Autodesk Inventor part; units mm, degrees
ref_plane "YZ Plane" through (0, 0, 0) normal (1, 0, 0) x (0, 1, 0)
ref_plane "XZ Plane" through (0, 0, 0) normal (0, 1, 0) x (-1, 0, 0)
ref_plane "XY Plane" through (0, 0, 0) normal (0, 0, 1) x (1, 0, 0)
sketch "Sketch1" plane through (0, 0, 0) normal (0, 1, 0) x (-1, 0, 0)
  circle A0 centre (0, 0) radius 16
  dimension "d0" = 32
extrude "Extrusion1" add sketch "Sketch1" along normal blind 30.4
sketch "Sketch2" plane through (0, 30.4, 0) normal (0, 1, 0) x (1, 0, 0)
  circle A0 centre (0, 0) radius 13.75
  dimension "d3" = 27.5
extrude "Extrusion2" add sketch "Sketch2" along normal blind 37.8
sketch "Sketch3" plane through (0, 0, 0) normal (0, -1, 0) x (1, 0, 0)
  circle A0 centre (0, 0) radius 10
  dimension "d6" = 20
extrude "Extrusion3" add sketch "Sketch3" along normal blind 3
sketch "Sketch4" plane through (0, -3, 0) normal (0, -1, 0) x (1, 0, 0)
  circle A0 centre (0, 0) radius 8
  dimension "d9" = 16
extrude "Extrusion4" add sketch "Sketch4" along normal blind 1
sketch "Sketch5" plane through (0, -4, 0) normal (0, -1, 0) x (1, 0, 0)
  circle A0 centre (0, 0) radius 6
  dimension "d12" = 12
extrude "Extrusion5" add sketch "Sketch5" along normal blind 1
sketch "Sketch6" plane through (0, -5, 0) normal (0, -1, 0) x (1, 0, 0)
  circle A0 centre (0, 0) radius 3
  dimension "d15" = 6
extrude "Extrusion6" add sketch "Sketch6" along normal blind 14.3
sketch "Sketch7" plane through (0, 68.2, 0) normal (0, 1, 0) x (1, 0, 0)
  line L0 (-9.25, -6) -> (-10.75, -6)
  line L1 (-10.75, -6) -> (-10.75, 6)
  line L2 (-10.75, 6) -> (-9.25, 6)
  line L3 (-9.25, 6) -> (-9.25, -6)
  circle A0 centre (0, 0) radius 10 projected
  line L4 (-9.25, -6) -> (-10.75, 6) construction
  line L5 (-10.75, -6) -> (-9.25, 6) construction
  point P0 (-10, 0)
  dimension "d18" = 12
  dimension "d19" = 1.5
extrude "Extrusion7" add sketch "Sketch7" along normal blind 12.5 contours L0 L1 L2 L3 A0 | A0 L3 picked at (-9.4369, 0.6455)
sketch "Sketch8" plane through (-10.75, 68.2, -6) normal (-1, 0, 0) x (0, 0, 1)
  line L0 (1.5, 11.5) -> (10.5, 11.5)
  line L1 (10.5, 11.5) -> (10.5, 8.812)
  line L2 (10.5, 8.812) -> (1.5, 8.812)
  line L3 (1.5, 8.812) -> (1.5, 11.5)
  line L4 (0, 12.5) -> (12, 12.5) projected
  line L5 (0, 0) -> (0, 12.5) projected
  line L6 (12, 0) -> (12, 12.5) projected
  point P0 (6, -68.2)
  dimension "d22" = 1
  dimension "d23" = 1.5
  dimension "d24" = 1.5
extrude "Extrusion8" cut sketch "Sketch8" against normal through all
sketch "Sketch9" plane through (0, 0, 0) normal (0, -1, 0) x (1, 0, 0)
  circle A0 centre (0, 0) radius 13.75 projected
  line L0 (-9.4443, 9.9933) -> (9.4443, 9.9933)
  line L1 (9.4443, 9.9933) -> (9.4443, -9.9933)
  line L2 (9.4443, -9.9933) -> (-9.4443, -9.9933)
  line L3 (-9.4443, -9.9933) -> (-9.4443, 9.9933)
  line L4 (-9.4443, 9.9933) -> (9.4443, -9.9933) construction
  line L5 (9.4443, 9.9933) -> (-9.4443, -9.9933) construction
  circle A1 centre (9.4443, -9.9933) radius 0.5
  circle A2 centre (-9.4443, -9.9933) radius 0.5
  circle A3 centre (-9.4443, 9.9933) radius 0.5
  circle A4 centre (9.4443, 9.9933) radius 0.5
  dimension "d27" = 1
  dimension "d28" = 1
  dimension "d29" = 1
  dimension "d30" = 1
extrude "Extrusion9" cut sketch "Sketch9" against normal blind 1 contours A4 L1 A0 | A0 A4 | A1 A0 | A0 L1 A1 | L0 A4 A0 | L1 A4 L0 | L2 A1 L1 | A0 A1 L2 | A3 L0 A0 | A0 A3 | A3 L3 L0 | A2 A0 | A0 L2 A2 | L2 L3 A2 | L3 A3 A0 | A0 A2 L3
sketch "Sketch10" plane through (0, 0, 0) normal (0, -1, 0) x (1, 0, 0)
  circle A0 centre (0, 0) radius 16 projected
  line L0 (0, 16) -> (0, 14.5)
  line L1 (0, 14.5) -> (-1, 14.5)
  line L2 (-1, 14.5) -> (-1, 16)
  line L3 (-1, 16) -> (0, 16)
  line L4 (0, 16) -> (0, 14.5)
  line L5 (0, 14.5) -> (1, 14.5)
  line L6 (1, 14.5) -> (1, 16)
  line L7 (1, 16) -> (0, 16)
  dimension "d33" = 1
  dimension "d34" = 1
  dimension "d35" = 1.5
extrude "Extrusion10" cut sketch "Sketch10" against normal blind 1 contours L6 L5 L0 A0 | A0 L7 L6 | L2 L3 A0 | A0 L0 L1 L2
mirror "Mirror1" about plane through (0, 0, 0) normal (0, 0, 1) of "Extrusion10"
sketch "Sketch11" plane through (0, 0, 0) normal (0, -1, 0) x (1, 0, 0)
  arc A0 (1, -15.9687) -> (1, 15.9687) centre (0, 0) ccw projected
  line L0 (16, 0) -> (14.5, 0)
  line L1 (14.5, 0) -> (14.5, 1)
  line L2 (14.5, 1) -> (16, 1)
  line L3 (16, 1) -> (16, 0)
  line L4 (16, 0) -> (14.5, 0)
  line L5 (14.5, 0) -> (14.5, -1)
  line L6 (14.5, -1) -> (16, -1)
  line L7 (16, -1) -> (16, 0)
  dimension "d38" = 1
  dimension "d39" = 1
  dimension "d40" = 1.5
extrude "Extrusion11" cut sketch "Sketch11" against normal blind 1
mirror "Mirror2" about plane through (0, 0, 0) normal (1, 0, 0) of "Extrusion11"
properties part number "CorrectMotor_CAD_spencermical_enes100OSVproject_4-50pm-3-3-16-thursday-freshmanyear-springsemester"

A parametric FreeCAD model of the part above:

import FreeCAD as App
import Part
import Sketcher

doc = App.newDocument("Part")
params = doc.addObject("Spreadsheet::Sheet", "Params")
for row, (alias, value) in enumerate([
    ("sketch1_diameter", "32 mm"),
    ("pad1_length", "30.4 mm"),
    ("sketch2_diameter", "27.5 mm"),
    ("pad2_length", "37.8 mm"),
    ("sketch3_diameter", "20 mm"),
    ("pad3_length", "3 mm"),
    ("sketch4_diameter", "16 mm"),
    ("pad4_length", "1 mm"),
    ("sketch5_diameter", "12 mm"),
    ("pad5_length", "1 mm"),
    ("sketch6_diameter", "6 mm"),
    ("pad6_length", "14.3 mm"),
    ("sketch7_height", "12 mm"),
    ("sketch7_width", "1.5 mm"),
    ("pad7_length", "12.5 mm"),
    ("sketch8_height", "9 mm"),
    ("sketch9_diameter", "1 mm"),
    ("pocket2_length", "1 mm"),
    ("sketch10_height", "1.5 mm"),
    ("pocket3_length", "1 mm"),
    ("sketch11_width", "1.5 mm"),
    ("pocket4_length", "1 mm"),
], start=1):
    params.set(f"A{row}", alias)
    params.set(f"B{row}", "=" + value)
    params.setAlias(f"B{row}", alias)

body = doc.addObject("PartDesign::Body", "Body")

sketch1 = doc.addObject("Sketcher::SketchObject", "Sketch")
body.addObject(sketch1)
sketch1.AttachmentSupport = (doc.XZ_Plane, [""])
sketch1.MapMode = "FlatFace"
sketch1.addGeometry(Part.Circle(App.Vector(0, 0, 0), App.Vector(0, 0, 1), 16), False)
sketch1.addConstraint(Sketcher.Constraint("Coincident", 0, 3, -1, 1))
sketch1.addConstraint(Sketcher.Constraint("Diameter", 0, 32.0))
sketch1.setExpression("Constraints[1]", "Params.sketch1_diameter")
pad1 = doc.addObject("PartDesign::Pad", "Pad")
body.addObject(pad1)
pad1.Profile = sketch1
pad1.setExpression("Length", "Params.pad1_length")
pad1.Reversed = True

sketch2 = doc.addObject("Sketcher::SketchObject", "Sketch001")
body.addObject(sketch2)
sketch2.AttachmentSupport = (doc.XZ_Plane, [""])
sketch2.MapMode = "FlatFace"
sketch2.AttachmentOffset = App.Placement(App.Vector(0, 0, -30.4), App.Rotation())
sketch2.addGeometry(Part.Circle(App.Vector(0, 0, 0), App.Vector(0, 0, 1), 14), False)
sketch2.addConstraint(Sketcher.Constraint("Coincident", 0, 3, -1, 1))
sketch2.addConstraint(Sketcher.Constraint("Diameter", 0, 27.5))
sketch2.setExpression("Constraints[1]", "Params.sketch2_diameter")
pad2 = doc.addObject("PartDesign::Pad", "Pad001")
body.addObject(pad2)
pad2.Profile = sketch2
pad2.setExpression("Length", "Params.pad2_length")
pad2.Reversed = True

sketch3 = doc.addObject("Sketcher::SketchObject", "Sketch002")
body.addObject(sketch3)
sketch3.AttachmentSupport = (doc.XZ_Plane, [""])
sketch3.MapMode = "FlatFace"
sketch3.addGeometry(Part.Circle(App.Vector(0, 0, 0), App.Vector(0, 0, 1), 10), False)
sketch3.addConstraint(Sketcher.Constraint("Coincident", 0, 3, -1, 1))
sketch3.addConstraint(Sketcher.Constraint("Diameter", 0, 20.0))
sketch3.setExpression("Constraints[1]", "Params.sketch3_diameter")
pad3 = doc.addObject("PartDesign::Pad", "Pad002")
body.addObject(pad3)
pad3.Profile = sketch3
pad3.setExpression("Length", "Params.pad3_length")

sketch4 = doc.addObject("Sketcher::SketchObject", "Sketch003")
body.addObject(sketch4)
sketch4.AttachmentSupport = (doc.XZ_Plane, [""])
sketch4.MapMode = "FlatFace"
sketch4.AttachmentOffset = App.Placement(App.Vector(0, 0, 3), App.Rotation())
sketch4.addGeometry(Part.Circle(App.Vector(0, 0, 0), App.Vector(0, 0, 1), 8), False)
sketch4.addConstraint(Sketcher.Constraint("Coincident", 0, 3, -1, 1))
sketch4.addConstraint(Sketcher.Constraint("Diameter", 0, 16.0))
sketch4.setExpression("Constraints[1]", "Params.sketch4_diameter")
pad4 = doc.addObject("PartDesign::Pad", "Pad003")
body.addObject(pad4)
pad4.Profile = sketch4
pad4.setExpression("Length", "Params.pad4_length")

sketch5 = doc.addObject("Sketcher::SketchObject", "Sketch004")
body.addObject(sketch5)
sketch5.AttachmentSupport = (doc.XZ_Plane, [""])
sketch5.MapMode = "FlatFace"
sketch5.AttachmentOffset = App.Placement(App.Vector(0, 0, 4), App.Rotation())
sketch5.addGeometry(Part.Circle(App.Vector(0, 0, 0), App.Vector(0, 0, 1), 6), False)
sketch5.addConstraint(Sketcher.Constraint("Coincident", 0, 3, -1, 1))
sketch5.addConstraint(Sketcher.Constraint("Diameter", 0, 12.0))
sketch5.setExpression("Constraints[1]", "Params.sketch5_diameter")
pad5 = doc.addObject("PartDesign::Pad", "Pad004")
body.addObject(pad5)
pad5.Profile = sketch5
pad5.setExpression("Length", "Params.pad5_length")

sketch6 = doc.addObject("Sketcher::SketchObject", "Sketch005")
body.addObject(sketch6)
sketch6.AttachmentSupport = (doc.XZ_Plane, [""])
sketch6.MapMode = "FlatFace"
sketch6.AttachmentOffset = App.Placement(App.Vector(0, 0, 5), App.Rotation())
sketch6.addGeometry(Part.Circle(App.Vector(0, 0, 0), App.Vector(0, 0, 1), 3), False)
sketch6.addConstraint(Sketcher.Constraint("Coincident", 0, 3, -1, 1))
sketch6.addConstraint(Sketcher.Constraint("Diameter", 0, 6.0))
sketch6.setExpression("Constraints[1]", "Params.sketch6_diameter")
pad6 = doc.addObject("PartDesign::Pad", "Pad005")
body.addObject(pad6)
pad6.Profile = sketch6
pad6.setExpression("Length", "Params.pad6_length")

sketch7 = doc.addObject("Sketcher::SketchObject", "Sketch006")
body.addObject(sketch7)
sketch7.AttachmentSupport = (doc.XZ_Plane, [""])
sketch7.MapMode = "FlatFace"
sketch7.AttachmentOffset = App.Placement(App.Vector(0, 0, -68.2), App.Rotation())
sketch7.addGeometry(Part.LineSegment(App.Vector(-10.8, 6, 0), App.Vector(-9.2, 6, 0)), False)
sketch7.addGeometry(Part.LineSegment(App.Vector(-9.2, 6, 0), App.Vector(-9.2, -6, 0)), False)
sketch7.addGeometry(Part.LineSegment(App.Vector(-9.2, -6, 0), App.Vector(-10.8, -6, 0)), False)
sketch7.addGeometry(Part.LineSegment(App.Vector(-10.8, -6, 0), App.Vector(-10.8, 6, 0)), False)
sketch7.addConstraint(Sketcher.Constraint("Coincident", 0, 2, 1, 1))
sketch7.addConstraint(Sketcher.Constraint("Coincident", 1, 2, 2, 1))
sketch7.addConstraint(Sketcher.Constraint("Coincident", 2, 2, 3, 1))
sketch7.addConstraint(Sketcher.Constraint("Coincident", 3, 2, 0, 1))
sketch7.addConstraint(Sketcher.Constraint("Horizontal", 0))
sketch7.addConstraint(Sketcher.Constraint("Vertical", 1))
sketch7.addConstraint(Sketcher.Constraint("Horizontal", 2))
sketch7.addConstraint(Sketcher.Constraint("Vertical", 3))
sketch7.addConstraint(Sketcher.Constraint("DistanceY", 1, 2, 1, 1, 12.0))
sketch7.addConstraint(Sketcher.Constraint("DistanceX", 0, 1, 0, 2, 1.5))
sketch7.addConstraint(Sketcher.Constraint("DistanceY", -1, 1, 0, 2, 6.0))
sketch7.addConstraint(Sketcher.Constraint("DistanceX", 0, 2, -1, 1, 9.25))
sketch7.setExpression("Constraints[8]", "Params.sketch7_height")
sketch7.setExpression("Constraints[9]", "Params.sketch7_width")
pad7 = doc.addObject("PartDesign::Pad", "Pad006")
body.addObject(pad7)
pad7.Profile = sketch7
pad7.setExpression("Length", "Params.pad7_length")
pad7.Reversed = True

sketch8 = doc.addObject("Sketcher::SketchObject", "Sketch007")
body.addObject(sketch8)
sketch8.AttachmentSupport = (doc.YZ_Plane, [""])
sketch8.MapMode = "FlatFace"
sketch8.AttachmentOffset = App.Placement(App.Vector(0, 0, -10.75), App.Rotation())
sketch8.addGeometry(Part.LineSegment(App.Vector(79.7, 4.5, 0), App.Vector(79.7, -4.5, 0)), False)
sketch8.addGeometry(Part.LineSegment(App.Vector(79.7, -4.5, 0), App.Vector(77, -4.5, 0)), False)
sketch8.addGeometry(Part.LineSegment(App.Vector(77, -4.5, 0), App.Vector(77, 4.5, 0)), False)
sketch8.addGeometry(Part.LineSegment(App.Vector(77, 4.5, 0), App.Vector(79.7, 4.5, 0)), False)
sketch8.addConstraint(Sketcher.Constraint("Coincident", 0, 2, 1, 1))
sketch8.addConstraint(Sketcher.Constraint("Coincident", 1, 2, 2, 1))
sketch8.addConstraint(Sketcher.Constraint("Coincident", 2, 2, 3, 1))
sketch8.addConstraint(Sketcher.Constraint("Coincident", 3, 2, 0, 1))
sketch8.addConstraint(Sketcher.Constraint("Vertical", 0))
sketch8.addConstraint(Sketcher.Constraint("Horizontal", 1))
sketch8.addConstraint(Sketcher.Constraint("Vertical", 2))
sketch8.addConstraint(Sketcher.Constraint("Horizontal", 3))
sketch8.addConstraint(Sketcher.Constraint("DistanceY", 0, 2, 0, 1, 9.0))
sketch8.addConstraint(Sketcher.Constraint("DistanceX", -1, 1, 0, 2, 79.7))
sketch8.addConstraint(Sketcher.Constraint("DistanceY", 0, 2, -1, 1, 4.5))
sketch8.addConstraint(Sketcher.Constraint("DistanceX", 1, 2, 1, 1, 2.688))
sketch8.setExpression("Constraints[8]", "Params.sketch8_height")
pocket1 = doc.addObject("PartDesign::Pocket", "Pocket")
body.addObject(pocket1)
pocket1.Profile = sketch8
pocket1.Type = "ThroughAll"
pocket1.Reversed = True

sketch9 = doc.addObject("Sketcher::SketchObject", "Sketch008")
body.addObject(sketch9)
sketch9.AttachmentSupport = (doc.XZ_Plane, [""])
sketch9.MapMode = "FlatFace"
sketch9.addGeometry(Part.Circle(App.Vector(9.4, 10, 0), App.Vector(0, 0, 1), 0.5), False)
sketch9.addGeometry(Part.Circle(App.Vector(9.4, -10, 0), App.Vector(0, 0, 1), 0.5), False)
sketch9.addGeometry(Part.Circle(App.Vector(-9.4, 10, 0), App.Vector(0, 0, 1), 0.5), False)
sketch9.addGeometry(Part.Circle(App.Vector(-9.4, -10, 0), App.Vector(0, 0, 1), 0.5), False)
sketch9.addConstraint(Sketcher.Constraint("Equal", 0, 1))
sketch9.addConstraint(Sketcher.Constraint("Equal", 1, 2))
sketch9.addConstraint(Sketcher.Constraint("Equal", 2, 3))
sketch9.addConstraint(Sketcher.Constraint("Symmetric", 1, 3, 2, 3, -1, 1))
sketch9.addConstraint(Sketcher.Constraint("Symmetric", 0, 3, 3, 3, -1, 1))
sketch9.addConstraint(Sketcher.Constraint("Symmetric", 0, 3, 2, 3, -2))
sketch9.addConstraint(Sketcher.Constraint("Diameter", 0, 1.0))
sketch9.addConstraint(Sketcher.Constraint("DistanceX", -1, 1, 0, 3, 9.4443))
sketch9.addConstraint(Sketcher.Constraint("DistanceY", -1, 1, 0, 3, 9.9933))
sketch9.setExpression("Constraints[6]", "Params.sketch9_diameter")
pocket2 = doc.addObject("PartDesign::Pocket", "Pocket001")
body.addObject(pocket2)
pocket2.Profile = sketch9
pocket2.setExpression("Length", "Params.pocket2_length")

sketch10 = doc.addObject("Sketcher::SketchObject", "Sketch009")
body.addObject(sketch10)
sketch10.AttachmentSupport = (doc.XZ_Plane, [""])
sketch10.MapMode = "FlatFace"
sketch10.addGeometry(Part.LineSegment(App.Vector(1, 14.5, 0), App.Vector(1, 16, 0)), False)
sketch10.addGeometry(Part.LineSegment(App.Vector(1, 16, 0), App.Vector(-1, 16, 0)), False)
sketch10.addGeometry(Part.LineSegment(App.Vector(-1, 16, 0), App.Vector(-1, 14.5, 0)), False)
sketch10.addGeometry(Part.LineSegment(App.Vector(-1, 14.5, 0), App.Vector(1, 14.5, 0)), False)
sketch10.addConstraint(Sketcher.Constraint("Coincident", 0, 2, 1, 1))
sketch10.addConstraint(Sketcher.Constraint("Coincident", 1, 2, 2, 1))
sketch10.addConstraint(Sketcher.Constraint("Coincident", 2, 2, 3, 1))
sketch10.addConstraint(Sketcher.Constraint("Coincident", 3, 2, 0, 1))
sketch10.addConstraint(Sketcher.Constraint("Vertical", 0))
sketch10.addConstraint(Sketcher.Constraint("Horizontal", 1))
sketch10.addConstraint(Sketcher.Constraint("Vertical", 2))
sketch10.addConstraint(Sketcher.Constraint("Horizontal", 3))
sketch10.addConstraint(Sketcher.Constraint("DistanceY", 0, 1, 0, 2, 1.5))
sketch10.addConstraint(Sketcher.Constraint("DistanceX", -1, 1, 0, 2, 1.0))
sketch10.addConstraint(Sketcher.Constraint("DistanceX", 1, 2, -1, 1, 1.0))
sketch10.addConstraint(Sketcher.Constraint("DistanceY", -1, 1, 0, 2, 16.0))
sketch10.setExpression("Constraints[8]", "Params.sketch10_height")
pocket3 = doc.addObject("PartDesign::Pocket", "Pocket002")
body.addObject(pocket3)
pocket3.Profile = sketch10
pocket3.setExpression("Length", "Params.pocket3_length")
doc.recompute()

mirrored = doc.addObject("PartDesign::Mirrored", "Mirrored")
body.addObject(mirrored)
mirrored.Originals = [pocket3]
mirrored.MirrorPlane = (doc.XY_Plane, [""])
body.Tip = mirrored

sketch11 = doc.addObject("Sketcher::SketchObject", "Sketch010")
body.addObject(sketch11)
sketch11.AttachmentSupport = (doc.XZ_Plane, [""])
sketch11.MapMode = "FlatFace"
sketch11.addGeometry(Part.LineSegment(App.Vector(14.5, -1, 0), App.Vector(16, -1, 0)), False)
sketch11.addGeometry(Part.LineSegment(App.Vector(16, -1, 0), App.Vector(16, 1, 0)), False)
sketch11.addGeometry(Part.LineSegment(App.Vector(16, 1, 0), App.Vector(14.5, 1, 0)), False)
sketch11.addGeometry(Part.LineSegment(App.Vector(14.5, 1, 0), App.Vector(14.5, -1, 0)), False)
sketch11.addConstraint(Sketcher.Constraint("Coincident", 0, 2, 1, 1))
sketch11.addConstraint(Sketcher.Constraint("Coincident", 1, 2, 2, 1))
sketch11.addConstraint(Sketcher.Constraint("Coincident", 2, 2, 3, 1))
sketch11.addConstraint(Sketcher.Constraint("Coincident", 3, 2, 0, 1))
sketch11.addConstraint(Sketcher.Constraint("Horizontal", 0))
sketch11.addConstraint(Sketcher.Constraint("Vertical", 1))
sketch11.addConstraint(Sketcher.Constraint("Horizontal", 2))
sketch11.addConstraint(Sketcher.Constraint("Vertical", 3))
sketch11.addConstraint(Sketcher.Constraint("DistanceX", 0, 1, 0, 2, 1.5))
sketch11.addConstraint(Sketcher.Constraint("DistanceY", 0, 2, -1, 1, 1.0))
sketch11.addConstraint(Sketcher.Constraint("DistanceY", -1, 1, 1, 2, 1.0))
sketch11.addConstraint(Sketcher.Constraint("DistanceX", -1, 1, 0, 2, 16.0))
sketch11.setExpression("Constraints[8]", "Params.sketch11_width")
pocket4 = doc.addObject("PartDesign::Pocket", "Pocket003")
body.addObject(pocket4)
pocket4.Profile = sketch11
pocket4.setExpression("Length", "Params.pocket4_length")
doc.recompute()

mirrored2 = doc.addObject("PartDesign::Mirrored", "Mirrored001")
body.addObject(mirrored2)
mirrored2.Originals = [pocket4]
mirrored2.MirrorPlane = (doc.YZ_Plane, [""])
body.Tip = mirrored2

doc.recompute()
